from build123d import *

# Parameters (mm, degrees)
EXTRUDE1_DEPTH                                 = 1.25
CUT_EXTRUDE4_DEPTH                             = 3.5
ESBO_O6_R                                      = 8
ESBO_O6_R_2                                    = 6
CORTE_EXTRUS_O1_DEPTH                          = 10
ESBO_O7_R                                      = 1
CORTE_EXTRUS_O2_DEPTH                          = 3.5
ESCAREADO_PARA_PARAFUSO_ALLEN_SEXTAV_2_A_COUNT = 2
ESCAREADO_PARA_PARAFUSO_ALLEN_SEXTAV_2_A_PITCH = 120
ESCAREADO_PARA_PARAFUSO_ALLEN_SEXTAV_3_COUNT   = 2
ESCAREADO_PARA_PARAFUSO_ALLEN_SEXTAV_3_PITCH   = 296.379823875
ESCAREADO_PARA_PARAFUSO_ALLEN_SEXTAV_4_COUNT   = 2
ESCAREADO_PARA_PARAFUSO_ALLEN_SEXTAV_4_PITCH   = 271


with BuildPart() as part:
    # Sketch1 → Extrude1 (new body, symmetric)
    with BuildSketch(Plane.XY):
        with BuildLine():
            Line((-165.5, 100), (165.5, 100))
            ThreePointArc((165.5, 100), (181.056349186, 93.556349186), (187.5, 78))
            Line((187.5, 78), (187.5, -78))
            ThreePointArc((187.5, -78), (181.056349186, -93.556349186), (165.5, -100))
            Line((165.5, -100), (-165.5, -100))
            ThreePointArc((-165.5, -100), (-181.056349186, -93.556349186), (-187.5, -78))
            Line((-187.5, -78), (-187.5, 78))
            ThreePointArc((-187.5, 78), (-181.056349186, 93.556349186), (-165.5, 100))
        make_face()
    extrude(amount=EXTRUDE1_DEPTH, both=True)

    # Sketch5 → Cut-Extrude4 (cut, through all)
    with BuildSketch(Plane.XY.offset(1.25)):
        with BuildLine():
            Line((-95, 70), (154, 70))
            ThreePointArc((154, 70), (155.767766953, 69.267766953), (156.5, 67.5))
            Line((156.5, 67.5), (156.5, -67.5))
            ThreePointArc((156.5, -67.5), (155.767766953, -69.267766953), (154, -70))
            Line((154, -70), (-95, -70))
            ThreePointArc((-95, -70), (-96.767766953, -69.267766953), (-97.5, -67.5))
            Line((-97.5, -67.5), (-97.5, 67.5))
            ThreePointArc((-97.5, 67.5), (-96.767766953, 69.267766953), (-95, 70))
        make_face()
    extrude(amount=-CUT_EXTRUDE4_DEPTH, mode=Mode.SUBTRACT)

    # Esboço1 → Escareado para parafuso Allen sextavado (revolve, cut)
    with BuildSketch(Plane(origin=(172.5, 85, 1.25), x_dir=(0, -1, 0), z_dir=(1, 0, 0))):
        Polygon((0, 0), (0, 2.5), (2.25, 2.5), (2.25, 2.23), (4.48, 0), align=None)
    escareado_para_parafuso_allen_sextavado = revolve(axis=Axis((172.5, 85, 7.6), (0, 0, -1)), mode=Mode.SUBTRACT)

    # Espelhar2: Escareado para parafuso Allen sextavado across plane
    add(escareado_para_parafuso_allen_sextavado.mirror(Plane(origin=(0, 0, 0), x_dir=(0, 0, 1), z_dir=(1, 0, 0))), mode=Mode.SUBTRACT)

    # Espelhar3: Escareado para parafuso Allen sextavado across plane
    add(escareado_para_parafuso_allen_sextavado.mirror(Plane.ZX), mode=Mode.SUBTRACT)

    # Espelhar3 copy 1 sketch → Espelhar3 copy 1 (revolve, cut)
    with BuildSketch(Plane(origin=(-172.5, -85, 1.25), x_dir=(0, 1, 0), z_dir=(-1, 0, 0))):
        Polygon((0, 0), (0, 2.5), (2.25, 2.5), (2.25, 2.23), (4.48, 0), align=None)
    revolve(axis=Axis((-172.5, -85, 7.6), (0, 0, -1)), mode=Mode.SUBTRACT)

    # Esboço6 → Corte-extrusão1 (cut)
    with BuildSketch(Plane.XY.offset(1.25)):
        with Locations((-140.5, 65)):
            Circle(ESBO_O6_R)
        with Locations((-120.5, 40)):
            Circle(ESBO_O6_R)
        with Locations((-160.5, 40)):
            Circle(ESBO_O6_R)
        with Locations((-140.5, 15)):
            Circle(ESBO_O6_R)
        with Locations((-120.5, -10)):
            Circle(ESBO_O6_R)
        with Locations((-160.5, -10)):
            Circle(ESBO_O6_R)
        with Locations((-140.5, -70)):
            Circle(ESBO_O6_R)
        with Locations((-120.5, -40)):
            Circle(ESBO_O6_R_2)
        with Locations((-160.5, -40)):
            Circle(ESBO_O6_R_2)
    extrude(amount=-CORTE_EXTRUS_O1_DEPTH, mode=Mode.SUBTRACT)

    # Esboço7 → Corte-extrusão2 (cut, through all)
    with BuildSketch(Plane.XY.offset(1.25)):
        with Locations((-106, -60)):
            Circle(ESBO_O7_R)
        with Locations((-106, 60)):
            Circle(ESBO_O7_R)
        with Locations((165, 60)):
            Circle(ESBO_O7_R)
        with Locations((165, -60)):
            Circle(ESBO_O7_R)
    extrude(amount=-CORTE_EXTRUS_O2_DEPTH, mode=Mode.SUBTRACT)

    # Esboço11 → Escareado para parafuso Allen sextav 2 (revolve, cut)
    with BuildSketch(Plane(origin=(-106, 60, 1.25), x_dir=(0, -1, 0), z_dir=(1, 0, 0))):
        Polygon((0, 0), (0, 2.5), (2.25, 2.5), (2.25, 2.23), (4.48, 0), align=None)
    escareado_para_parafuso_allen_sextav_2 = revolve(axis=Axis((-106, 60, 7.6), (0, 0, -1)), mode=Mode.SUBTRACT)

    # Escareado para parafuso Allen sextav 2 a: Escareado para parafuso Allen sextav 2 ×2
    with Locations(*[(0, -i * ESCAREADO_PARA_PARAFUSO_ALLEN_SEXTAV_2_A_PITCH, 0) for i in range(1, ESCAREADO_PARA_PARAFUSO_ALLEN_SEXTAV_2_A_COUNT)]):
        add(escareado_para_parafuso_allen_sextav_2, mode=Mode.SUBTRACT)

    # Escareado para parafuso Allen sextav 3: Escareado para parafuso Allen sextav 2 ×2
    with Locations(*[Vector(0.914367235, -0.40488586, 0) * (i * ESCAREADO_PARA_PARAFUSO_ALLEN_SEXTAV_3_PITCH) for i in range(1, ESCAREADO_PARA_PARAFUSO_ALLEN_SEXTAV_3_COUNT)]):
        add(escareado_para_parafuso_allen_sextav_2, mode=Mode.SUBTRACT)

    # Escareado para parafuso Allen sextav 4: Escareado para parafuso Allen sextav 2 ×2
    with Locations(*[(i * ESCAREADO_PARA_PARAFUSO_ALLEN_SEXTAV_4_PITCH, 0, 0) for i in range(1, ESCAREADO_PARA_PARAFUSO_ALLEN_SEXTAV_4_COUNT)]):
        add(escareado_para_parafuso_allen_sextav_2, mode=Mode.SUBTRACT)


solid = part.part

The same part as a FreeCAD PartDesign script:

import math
import FreeCAD as App
import Part
import Sketcher
from FreeCAD import Vector
Q = App.Units.Quantity

doc = App.newDocument("Part")
params = doc.addObject("Spreadsheet::Sheet", "Params")
for row, (alias, value) in enumerate([
    ("sketch1_radius", "22 mm"),
    ("sketch1_width", "331 mm"),
    ("sketch1_height", "156 mm"),
    ("pad1_length", "2.5 mm"),
    ("sketch2_radius", "2.5 mm"),
    ("sketch2_width", "249 mm"),
    ("sketch2_height", "135 mm"),
    ("sketch3_height", "2.5 mm"),
    ("sketch3_width", "4.48 mm"),
    ("sketch3_width2", "2.25 mm"),
    ("groove_angle", "360 deg"),
    ("sketch4_height", "2.5 mm"),
    ("sketch4_width", "4.48 mm"),
    ("sketch4_width2", "2.25 mm"),
    ("groove2_angle", "360 deg"),
    ("sketch5_diameter", "16 mm"),
    ("sketch5_diameter2", "12 mm"),
    ("pocket2_length", "10 mm"),
    ("sketch6_diameter", "2 mm"),
    ("sketch7_height", "2.5 mm"),
    ("sketch7_width", "4.48 mm"),
    ("sketch7_width2", "2.25 mm"),
    ("groove3_angle", "360 deg"),
    ("linearpattern_pitch", "120 mm"),
    ("linearpattern2_pitch", "296.379824 mm"),
    ("linearpattern3_pitch", "271 mm"),
], start=1):
    params.set(f"A{row}", alias)
    params.set(f"B{row}", "=" + value)
    params.setAlias(f"B{row}", alias)

body = doc.addObject("PartDesign::Body", "Body")

sketch1 = body.newObject("Sketcher::SketchObject", "Sketch")
sketch1.AttachmentSupport = (doc.getObject("XY_Plane"), [""])
sketch1.MapMode = "FlatFace"
sketch1.addGeometry([
    Part.LineSegment(Vector(166, 100, 0), Vector(-166, 100, 0)),
    Part.ArcOfCircle(Part.Circle(Vector(-166, 78, 0), Vector(0, 0, 1), 22), math.radians(90), math.radians(180)),
    Part.LineSegment(Vector(-188, 78, 0), Vector(-188, -78, 0)),
    Part.ArcOfCircle(Part.Circle(Vector(-166, -78, 0), Vector(0, 0, 1), 22), math.radians(180), math.radians(270)),
    Part.LineSegment(Vector(-166, -100, 0), Vector(166, -100, 0)),
    Part.ArcOfCircle(Part.Circle(Vector(166, -78, 0), Vector(0, 0, 1), 22), math.radians(-90), math.radians(0)),
    Part.LineSegment(Vector(188, -78, 0), Vector(188, 78, 0)),
    Part.ArcOfCircle(Part.Circle(Vector(166, 78, 0), Vector(0, 0, 1), 22), math.radians(0), math.radians(90)),
], False)
sketch1.addConstraint([
    Sketcher.Constraint("Tangent", 0, 2, 1, 1),
    Sketcher.Constraint("Tangent", 1, 2, 2, 1),
    Sketcher.Constraint("Tangent", 2, 2, 3, 1),
    Sketcher.Constraint("Tangent", 3, 2, 4, 1),
    Sketcher.Constraint("Tangent", 4, 2, 5, 1),
    Sketcher.Constraint("Tangent", 5, 2, 6, 1),
    Sketcher.Constraint("Tangent", 6, 2, 7, 1),
    Sketcher.Constraint("Tangent", 7, 2, 0, 1),
    Sketcher.Constraint("Horizontal", 0),
    Sketcher.Constraint("Vertical", 2),
    Sketcher.Constraint("Horizontal", 4),
    Sketcher.Constraint("Vertical", 6),
    Sketcher.Constraint("Equal", 1, 3),
    Sketcher.Constraint("Equal", 3, 5),
    Sketcher.Constraint("Equal", 5, 7),
    Sketcher.Constraint("Symmetric", 1, 3, 5, 3, -1, 1),
    Sketcher.Constraint("Radius", 1, 22.0),
    Sketcher.Constraint("DistanceX", 0, 2, 0, 1, 331.0),
    Sketcher.Constraint("DistanceY", 2, 2, 2, 1, 156.0),
])
sketch1.setExpression("Constraints[16]", "Params.sketch1_radius")
sketch1.setExpression("Constraints[17]", "Params.sketch1_width")
sketch1.setExpression("Constraints[18]", "Params.sketch1_height")
pad1 = body.newObject("PartDesign::Pad", "Pad")
pad1.Profile = sketch1
pad1.setExpression("Length", "Params.pad1_length")
pad1.Midplane = True

sketch2 = body.newObject("Sketcher::SketchObject", "Sketch001")
sketch2.AttachmentSupport = (doc.getObject("XY_Plane"), [""])
sketch2.MapMode = "FlatFace"
sketch2.AttachmentOffset = App.Placement(Vector(0, 0, 1.25), App.Rotation())
sketch2.addGeometry([
    Part.LineSegment(Vector(154, 70, 0), Vector(-95, 70, 0)),
    Part.ArcOfCircle(Part.Circle(Vector(-95, 67.5, 0), Vector(0, 0, 1), 2.5), math.radians(90), math.radians(180)),
    Part.LineSegment(Vector(-97.5, 67.5, 0), Vector(-97.5, -67.5, 0)),
    Part.ArcOfCircle(Part.Circle(Vector(-95, -67.5, 0), Vector(0, 0, 1), 2.5), math.radians(180), math.radians(270)),
    Part.LineSegment(Vector(-95, -70, 0), Vector(154, -70, 0)),
    Part.ArcOfCircle(Part.Circle(Vector(154, -67.5, 0), Vector(0, 0, 1), 2.5), math.radians(-90), math.radians(0)),
    Part.LineSegment(Vector(156.5, -67.5, 0), Vector(156.5, 67.5, 0)),
    Part.ArcOfCircle(Part.Circle(Vector(154, 67.5, 0), Vector(0, 0, 1), 2.5), math.radians(0), math.radians(90)),
], False)
sketch2.addConstraint([
    Sketcher.Constraint("Tangent", 0, 2, 1, 1),
    Sketcher.Constraint("Tangent", 1, 2, 2, 1),
    Sketcher.Constraint("Tangent", 2, 2, 3, 1),
    Sketcher.Constraint("Tangent", 3, 2, 4, 1),
    Sketcher.Constraint("Tangent", 4, 2, 5, 1),
    Sketcher.Constraint("Tangent", 5, 2, 6, 1),
    Sketcher.Constraint("Tangent", 6, 2, 7, 1),
    Sketcher.Constraint("Tangent", 7, 2, 0, 1),
    Sketcher.Constraint("Horizontal", 0),
    Sketcher.Constraint("Vertical", 2),
    Sketcher.Constraint("Horizontal", 4),
    Sketcher.Constraint("Vertical", 6),
    Sketcher.Constraint("Equal", 1, 3),
    Sketcher.Constraint("Equal", 3, 5),
    Sketcher.Constraint("Equal", 5, 7),
    Sketcher.Constraint("Radius", 1, 2.5),
    Sketcher.Constraint("DistanceX", 0, 2, 0, 1, 249.0),
    Sketcher.Constraint("DistanceY", 2, 2, 2, 1, 135.0),
    Sketcher.Constraint("DistanceX", 1, 3, -1, 1, 95.0),
    Sketcher.Constraint("DistanceY", -1, 1, 0, 2, 70.0),
])
sketch2.setExpression("Constraints[15]", "Params.sketch2_radius")
sketch2.setExpression("Constraints[16]", "Params.sketch2_width")
sketch2.setExpression("Constraints[17]", "Params.sketch2_height")
pocket1 = body.newObject("PartDesign::Pocket", "Pocket")
pocket1.Profile = sketch2
pocket1.Type = "ThroughAll"

sketch3 = body.newObject("Sketcher::SketchObject", "Sketch002")
sketch3.AttachmentSupport = (doc.getObject("YZ_Plane"), [""])
sketch3.MapMode = "FlatFace"
sketch3.AttachmentOffset = App.Placement(Vector(0, 0, 172.5), App.Rotation())
sketch3.addGeometry([
    Part.LineSegment(Vector(85, -1.25, 0), Vector(85, 1.25, 0)),
    Part.LineSegment(Vector(85, 1.25, 0), Vector(80.52, 1.25, 0)),
    Part.LineSegment(Vector(80.52, 1.25, 0), Vector(82.75, -0.98, 0)),
    Part.LineSegment(Vector(82.75, -0.98, 0), Vector(82.75, -1.25, 0)),
    Part.LineSegment(Vector(82.75, -1.25, 0), Vector(85, -1.25, 0)),
], False)
sketch3.addGeometry(Part.LineSegment(Vector(85, 1.25, 0), Vector(85, -1.25, 0)), True)
sketch3.addConstraint([
    Sketcher.Constraint("Coincident", 0, 2, 1, 1),
    Sketcher.Constraint("Coincident", 1, 2, 2, 1),
    Sketcher.Constraint("Coincident", 2, 2, 3, 1),
    Sketcher.Constraint("Coincident", 3, 2, 4, 1),
    Sketcher.Constraint("Coincident", 4, 2, 0, 1),
    Sketcher.Constraint("Vertical", 0),
    Sketcher.Constraint("Horizontal", 1),
    Sketcher.Constraint("Vertical", 3),
    Sketcher.Constraint("Horizontal", 4),
    Sketcher.Constraint("Vertical", 5),
    Sketcher.Constraint("Coincident", 5, 1, 0, 2),
    Sketcher.Constraint("Horizontal", 3, 2, 5, 2),
    Sketcher.Constraint("Angle", 2, Q("-45 deg")),
    Sketcher.Constraint("DistanceY", 0, 1, 0, 2, 2.5),
    Sketcher.Constraint("DistanceX", -1, 1, 0, 2, 85.0),
    Sketcher.Constraint("DistanceX", 1, 2, 1, 1, 4.48),
    Sketcher.Constraint("DistanceX", 4, 1, 4, 2, 2.25),
    Sketcher.Constraint("DistanceY", -1, 1, 0, 2, 1.25),
])
sketch3.setExpression("Constraints[13]", "Params.sketch3_height")
sketch3.setExpression("Constraints[15]", "Params.sketch3_width")
sketch3.setExpression("Constraints[16]", "Params.sketch3_width2")
groove = body.newObject("PartDesign::Groove", "Groove")
groove.Profile = sketch3
groove.ReferenceAxis = (sketch3, ["Axis0"])
groove.setExpression("Angle", "Params.groove_angle")
doc.recompute()

mirrored = body.newObject("PartDesign::Mirrored", "Mirrored")
mirrored.Originals = [groove]
mirrored.MirrorPlane = (doc.getObject("YZ_Plane"), [""])
body.Tip = mirrored
doc.recompute()

mirrored2 = body.newObject("PartDesign::Mirrored", "Mirrored001")
mirrored2.Originals = [groove]
mirrored2.MirrorPlane = (doc.getObject("XZ_Plane"), [""])
body.Tip = mirrored2

sketch4 = body.newObject("Sketcher::SketchObject", "Sketch003")
sketch4.AttachmentSupport = (doc.getObject("YZ_Plane"), [""])
sketch4.MapMode = "FlatFace"
sketch4.AttachmentOffset = App.Placement(Vector(0, 0, -172.5), App.Rotation())
sketch4.addGeometry([
    Part.LineSegment(Vector(-85, -1.25, 0), Vector(-85, 1.25, 0)),
    Part.LineSegment(Vector(-85, 1.25, 0), Vector(-80.52, 1.25, 0)),
    Part.LineSegment(Vector(-80.52, 1.25, 0), Vector(-82.75, -0.98, 0)),
    Part.LineSegment(Vector(-82.75, -0.98, 0), Vector(-82.75, -1.25, 0)),
    Part.LineSegment(Vector(-82.75, -1.25, 0), Vector(-85, -1.25, 0)),
], False)
sketch4.addGeometry(Part.LineSegment(Vector(-85, 1.25, 0), Vector(-85, -1.25, 0)), True)
sketch4.addConstraint([
    Sketcher.Constraint("Coincident", 0, 2, 1, 1),
    Sketcher.Constraint("Coincident", 1, 2, 2, 1),
    Sketcher.Constraint("Coincident", 2, 2, 3, 1),
    Sketcher.Constraint("Coincident", 3, 2, 4, 1),
    Sketcher.Constraint("Coincident", 4, 2, 0, 1),
    Sketcher.Constraint("Vertical", 0),
    Sketcher.Constraint("Horizontal", 1),
    Sketcher.Constraint("Vertical", 3),
    Sketcher.Constraint("Horizontal", 4),
    Sketcher.Constraint("Vertical", 5),
    Sketcher.Constraint("Coincident", 5, 1, 0, 2),
    Sketcher.Constraint("Horizontal", 3, 2, 5, 2),
    Sketcher.Constraint("Angle", 2, Q("-135 deg")),
    Sketcher.Constraint("DistanceY", 0, 1, 0, 2, 2.5),
    Sketcher.Constraint("DistanceX", 0, 2, -1, 1, 85.0),
    Sketcher.Constraint("DistanceX", 1, 1, 1, 2, 4.48),
    Sketcher.Constraint("DistanceX", 4, 2, 4, 1, 2.25),
    Sketcher.Constraint("DistanceY", -1, 1, 0, 2, 1.25),
])
sketch4.setExpression("Constraints[13]", "Params.sketch4_height")
sketch4.setExpression("Constraints[15]", "Params.sketch4_width")
sketch4.setExpression("Constraints[16]", "Params.sketch4_width2")
groove2 = body.newObject("PartDesign::Groove", "Groove001")
groove2.Profile = sketch4
groove2.ReferenceAxis = (sketch4, ["Axis0"])
groove2.setExpression("Angle", "Params.groove2_angle")

sketch5 = body.newObject("Sketcher::SketchObject", "Sketch004")
sketch5.AttachmentSupport = (doc.getObject("XY_Plane"), [""])
sketch5.MapMode = "FlatFace"
sketch5.AttachmentOffset = App.Placement(Vector(0, 0, 1.25), App.Rotation())
sketch5.addGeometry([
    Part.Circle(Vector(-140, 65, 0), Vector(0, 0, 1), 8),
    Part.Circle(Vector(-120, 40, 0), Vector(0, 0, 1), 8),
    Part.Circle(Vector(-160, 40, 0), Vector(0, 0, 1), 8),
    Part.Circle(Vector(-140, 15, 0), Vector(0, 0, 1), 8),
    Part.Circle(Vector(-120, -10, 0), Vector(0, 0, 1), 8),
    Part.Circle(Vector(-160, -10, 0), Vector(0, 0, 1), 8),
    Part.Circle(Vector(-140, -70, 0), Vector(0, 0, 1), 8),
    Part.Circle(Vector(-120, -40, 0), Vector(0, 0, 1), 6),
    Part.Circle(Vector(-160, -40, 0), Vector(0, 0, 1), 6),
], False)
sketch5.addConstraint([
    Sketcher.Constraint("Equal", 0, 1),
    Sketcher.Constraint("Equal", 1, 2),
    Sketcher.Constraint("Equal", 2, 3),
    Sketcher.Constraint("Equal", 3, 4),
    Sketcher.Constraint("Equal", 4, 5),
    Sketcher.Constraint("Equal", 5, 6),
    Sketcher.Constraint("Equal", 7, 8),
    Sketcher.Constraint("Symmetric", 1, 3, 7, 3, -1),
    Sketcher.Constraint("Symmetric", 2, 3, 8, 3, -1),
    Sketcher.Constraint("Horizontal", 1, 3, 2, 3),
    Sketcher.Constraint("Horizontal", 4, 3, 5, 3),
    Sketcher.Constraint("Vertical", 0, 3, 3, 3),
    Sketcher.Constraint("Vertical", 1, 3, 4, 3),
    Sketcher.Constraint("Vertical", 2, 3, 5, 3),
    Sketcher.Constraint("Vertical", 3, 3, 6, 3),
    Sketcher.Constraint("Diameter", 0, 16.0),
    Sketcher.Constraint("Diameter", 7, 12.0),
    Sketcher.Constraint("DistanceY", -1, 1, 0, 3, 65.0),
    Sketcher.Constraint("DistanceY", -1, 1, 1, 3, 40.0),
    Sketcher.Constraint("DistanceY", -1, 1, 3, 3, 15.0),
    Sketcher.Constraint("DistanceY", 4, 3, -1, 1, 10.0),
    Sketcher.Constraint("DistanceY", 6, 3, -1, 1, 70.0),
    Sketcher.Constraint("DistanceX", 0, 3, 1, 3, 20.0),
    Sketcher.Constraint("DistanceX", 2, 3, 0, 3, 20.0),
    Sketcher.Constraint("DistanceX", 0, 3, -1, 1, 140.5),
])
sketch5.setExpression("Constraints[15]", "Params.sketch5_diameter")
sketch5.setExpression("Constraints[16]", "Params.sketch5_diameter2")
pocket2 = body.newObject("PartDesign::Pocket", "Pocket001")
pocket2.Profile = sketch5
pocket2.setExpression("Length", "Params.pocket2_length")

sketch6 = body.newObject("Sketcher::SketchObject", "Sketch005")
sketch6.AttachmentSupport = (doc.getObject("XY_Plane"), [""])
sketch6.MapMode = "FlatFace"
sketch6.AttachmentOffset = App.Placement(Vector(0, 0, 1.25), App.Rotation())
sketch6.addGeometry([
    Part.Circle(Vector(-106, -60, 0), Vector(0, 0, 1), 1),
    Part.Circle(Vector(-106, 60, 0), Vector(0, 0, 1), 1),
    Part.Circle(Vector(165, 60, 0), Vector(0, 0, 1), 1),
    Part.Circle(Vector(165, -60, 0), Vector(0, 0, 1), 1),
], False)
sketch6.addConstraint([
    Sketcher.Constraint("Equal", 0, 1),
    Sketcher.Constraint("Equal", 1, 2),
    Sketcher.Constraint("Equal", 2, 3),
    Sketcher.Constraint("Symmetric", 0, 3, 1, 3, -1),
    Sketcher.Constraint("Symmetric", 2, 3, 3, 3, -1),
    Sketcher.Constraint("Horizontal", 1, 3, 2, 3),
    Sketcher.Constraint("Diameter", 0, 2.0),
    Sketcher.Constraint("DistanceX", 0, 3, -1, 1, 106.0),
    Sketcher.Constraint("DistanceY", 0, 3, -1, 1, 60.0),
    Sketcher.Constraint("DistanceX", -1, 1, 2, 3, 165.0),
])
sketch6.setExpression("Constraints[6]", "Params.sketch6_diameter")
pocket3 = body.newObject("PartDesign::Pocket", "Pocket002")
pocket3.Profile = sketch6
pocket3.Type = "ThroughAll"

sketch7 = body.newObject("Sketcher::SketchObject", "Sketch006")
sketch7.AttachmentSupport = (doc.getObject("YZ_Plane"), [""])
sketch7.MapMode = "FlatFace"
sketch7.AttachmentOffset = App.Placement(Vector(0, 0, -106), App.Rotation())
sketch7.addGeometry([
    Part.LineSegment(Vector(60, -1.25, 0), Vector(60, 1.25, 0)),
    Part.LineSegment(Vector(60, 1.25, 0), Vector(55.52, 1.25, 0)),
    Part.LineSegment(Vector(55.52, 1.25, 0), Vector(57.75, -0.98, 0)),
    Part.LineSegment(Vector(57.75, -0.98, 0), Vector(57.75, -1.25, 0)),
    Part.LineSegment(Vector(57.75, -1.25, 0), Vector(60, -1.25, 0)),
], False)
sketch7.addGeometry(Part.LineSegment(Vector(60, 1.25, 0), Vector(60, -1.25, 0)), True)
sketch7.addConstraint([
    Sketcher.Constraint("Coincident", 0, 2, 1, 1),
    Sketcher.Constraint("Coincident", 1, 2, 2, 1),
    Sketcher.Constraint("Coincident", 2, 2, 3, 1),
    Sketcher.Constraint("Coincident", 3, 2, 4, 1),
    Sketcher.Constraint("Coincident", 4, 2, 0, 1),
    Sketcher.Constraint("Vertical", 0),
    Sketcher.Constraint("Horizontal", 1),
    Sketcher.Constraint("Vertical", 3),
    Sketcher.Constraint("Horizontal", 4),
    Sketcher.Constraint("Vertical", 5),
    Sketcher.Constraint("Coincident", 5, 1, 0, 2),
    Sketcher.Constraint("Horizontal", 3, 2, 5, 2),
    Sketcher.Constraint("Angle", 2, Q("-45 deg")),
    Sketcher.Constraint("DistanceY", 0, 1, 0, 2, 2.5),
    Sketcher.Constraint("DistanceX", -1, 1, 0, 2, 60.0),
    Sketcher.Constraint("DistanceX", 1, 2, 1, 1, 4.48),
    Sketcher.Constraint("DistanceX", 4, 1, 4, 2, 2.25),
    Sketcher.Constraint("DistanceY", -1, 1, 0, 2, 1.25),
])
sketch7.setExpression("Constraints[13]", "Params.sketch7_height")
sketch7.setExpression("Constraints[15]", "Params.sketch7_width")
sketch7.setExpression("Constraints[16]", "Params.sketch7_width2")
groove3 = body.newObject("PartDesign::Groove", "Groove002")
groove3.Profile = sketch7
groove3.ReferenceAxis = (sketch7, ["Axis0"])
groove3.setExpression("Angle", "Params.groove3_angle")
doc.recompute()

linearpattern = body.newObject("PartDesign::LinearPattern", "LinearPattern")
linearpattern.Originals = [groove3]
linearpattern.Direction = (doc.getObject("Y_Axis"), [""])
linearpattern.Mode = "offset"
linearpattern.setExpression("Offset", "Params.linearpattern_pitch")
linearpattern.Occurrences = 2
linearpattern.Reversed = True
body.Tip = linearpattern
doc.recompute()

datumline = body.newObject("PartDesign::Line", "DatumLine")
datumline.Placement = App.Placement(Vector(0, 0, 0), App.Rotation(Vector(0, 0, 1), Vector(0.914367235, -0.40488586, 0)))
linearpattern2 = body.newObject("PartDesign::LinearPattern", "LinearPattern001")
linearpattern2.Originals = [groove3]
linearpattern2.Direction = (datumline, [""])
linearpattern2.Mode = "offset"
linearpattern2.setExpression("Offset", "Params.linearpattern2_pitch")
linearpattern2.Occurrences = 2
body.Tip = linearpattern2
doc.recompute()

linearpattern3 = body.newObject("PartDesign::LinearPattern", "LinearPattern002")
linearpattern3.Originals = [groove3]
linearpattern3.Direction = (doc.getObject("X_Axis"), [""])
linearpattern3.Mode = "offset"
linearpattern3.setExpression("Offset", "Params.linearpattern3_pitch")
linearpattern3.Occurrences = 2
body.Tip = linearpattern3

doc.recompute()
